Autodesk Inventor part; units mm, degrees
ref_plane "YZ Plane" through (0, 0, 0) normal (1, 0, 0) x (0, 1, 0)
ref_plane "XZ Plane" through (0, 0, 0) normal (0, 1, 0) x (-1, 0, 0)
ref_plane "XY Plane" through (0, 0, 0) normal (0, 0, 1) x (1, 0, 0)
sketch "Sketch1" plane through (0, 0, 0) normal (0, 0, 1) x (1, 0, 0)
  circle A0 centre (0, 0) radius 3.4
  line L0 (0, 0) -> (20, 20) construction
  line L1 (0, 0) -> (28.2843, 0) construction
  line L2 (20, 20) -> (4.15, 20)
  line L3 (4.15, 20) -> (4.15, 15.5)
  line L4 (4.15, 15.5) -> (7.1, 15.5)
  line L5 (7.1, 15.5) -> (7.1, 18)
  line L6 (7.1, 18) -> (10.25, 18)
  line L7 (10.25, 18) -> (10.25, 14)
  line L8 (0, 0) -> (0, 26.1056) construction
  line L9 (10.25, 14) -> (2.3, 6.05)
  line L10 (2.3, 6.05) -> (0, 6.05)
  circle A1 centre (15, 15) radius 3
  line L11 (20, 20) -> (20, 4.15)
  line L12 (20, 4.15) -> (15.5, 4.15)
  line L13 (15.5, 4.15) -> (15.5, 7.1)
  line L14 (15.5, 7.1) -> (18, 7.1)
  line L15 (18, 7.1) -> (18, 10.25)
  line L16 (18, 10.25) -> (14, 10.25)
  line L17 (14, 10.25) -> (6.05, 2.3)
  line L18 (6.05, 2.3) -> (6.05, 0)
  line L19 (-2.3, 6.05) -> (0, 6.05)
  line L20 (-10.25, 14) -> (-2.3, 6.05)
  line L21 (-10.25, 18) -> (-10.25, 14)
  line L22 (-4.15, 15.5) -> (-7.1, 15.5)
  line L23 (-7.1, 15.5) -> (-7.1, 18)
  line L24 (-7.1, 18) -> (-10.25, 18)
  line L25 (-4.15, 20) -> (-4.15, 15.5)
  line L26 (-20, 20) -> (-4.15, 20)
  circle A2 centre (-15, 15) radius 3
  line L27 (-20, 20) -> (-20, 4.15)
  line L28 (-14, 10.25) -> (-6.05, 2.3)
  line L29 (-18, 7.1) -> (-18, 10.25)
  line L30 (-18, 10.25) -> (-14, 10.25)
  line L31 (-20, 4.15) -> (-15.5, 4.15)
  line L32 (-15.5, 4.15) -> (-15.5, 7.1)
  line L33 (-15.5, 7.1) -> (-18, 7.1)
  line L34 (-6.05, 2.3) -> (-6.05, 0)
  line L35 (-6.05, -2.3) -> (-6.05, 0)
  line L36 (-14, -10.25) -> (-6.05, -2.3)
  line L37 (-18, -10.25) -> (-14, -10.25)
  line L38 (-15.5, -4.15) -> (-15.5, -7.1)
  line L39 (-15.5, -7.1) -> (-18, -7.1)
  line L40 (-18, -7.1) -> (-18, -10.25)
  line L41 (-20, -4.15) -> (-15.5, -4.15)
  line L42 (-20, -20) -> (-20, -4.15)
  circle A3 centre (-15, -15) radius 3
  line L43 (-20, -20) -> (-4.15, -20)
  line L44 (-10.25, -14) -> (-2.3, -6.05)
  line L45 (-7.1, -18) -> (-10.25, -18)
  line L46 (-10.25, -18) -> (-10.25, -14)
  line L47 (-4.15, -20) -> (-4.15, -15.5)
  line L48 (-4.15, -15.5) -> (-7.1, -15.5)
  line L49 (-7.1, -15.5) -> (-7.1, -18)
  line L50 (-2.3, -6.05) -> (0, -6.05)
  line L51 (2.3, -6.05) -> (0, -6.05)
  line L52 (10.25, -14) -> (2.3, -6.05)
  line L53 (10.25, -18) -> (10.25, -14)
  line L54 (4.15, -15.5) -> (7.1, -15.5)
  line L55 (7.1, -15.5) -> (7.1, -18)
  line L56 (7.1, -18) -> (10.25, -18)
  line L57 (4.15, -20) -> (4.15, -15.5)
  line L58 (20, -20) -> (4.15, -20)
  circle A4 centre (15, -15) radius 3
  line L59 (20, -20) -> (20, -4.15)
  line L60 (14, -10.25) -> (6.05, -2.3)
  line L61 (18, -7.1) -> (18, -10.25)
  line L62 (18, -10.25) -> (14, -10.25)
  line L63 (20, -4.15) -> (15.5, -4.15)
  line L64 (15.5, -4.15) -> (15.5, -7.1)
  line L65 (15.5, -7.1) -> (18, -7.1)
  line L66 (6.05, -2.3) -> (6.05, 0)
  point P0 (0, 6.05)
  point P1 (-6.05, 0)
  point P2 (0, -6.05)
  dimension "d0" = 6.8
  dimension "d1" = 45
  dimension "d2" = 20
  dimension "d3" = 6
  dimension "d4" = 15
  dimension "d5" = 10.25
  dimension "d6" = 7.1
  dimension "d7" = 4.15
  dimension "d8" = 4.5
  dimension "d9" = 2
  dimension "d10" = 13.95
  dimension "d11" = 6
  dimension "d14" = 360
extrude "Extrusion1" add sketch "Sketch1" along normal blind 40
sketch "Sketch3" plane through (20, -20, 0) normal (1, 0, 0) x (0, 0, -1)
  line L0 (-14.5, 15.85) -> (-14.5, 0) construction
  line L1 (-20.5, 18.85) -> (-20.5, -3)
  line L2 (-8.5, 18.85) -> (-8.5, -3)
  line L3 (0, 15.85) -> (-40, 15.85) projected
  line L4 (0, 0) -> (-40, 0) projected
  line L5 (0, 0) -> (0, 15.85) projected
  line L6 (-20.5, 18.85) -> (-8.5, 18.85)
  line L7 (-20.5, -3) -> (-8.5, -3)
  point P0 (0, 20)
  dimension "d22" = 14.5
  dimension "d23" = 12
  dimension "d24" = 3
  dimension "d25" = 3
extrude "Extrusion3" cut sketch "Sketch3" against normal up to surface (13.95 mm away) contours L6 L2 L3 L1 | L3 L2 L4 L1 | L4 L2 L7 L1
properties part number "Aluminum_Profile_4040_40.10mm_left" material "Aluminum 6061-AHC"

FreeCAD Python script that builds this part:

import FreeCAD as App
import Part
import Sketcher

V = App.Vector


def add_polygon(sketch, points):
    """Adds a closed chain of lines whose ends are joined by coincident constraints."""
    first, n = sketch.GeometryCount, len(points)
    for a, b in zip(points, points[1:] + points[:1]):
        sketch.addGeometry(Part.LineSegment(App.Vector(*a, 0), App.Vector(*b, 0)), False)
    for i in range(n):
        sketch.addConstraint(Sketcher.Constraint("Coincident", first + i, 2, first + (i + 1) % n, 1))

doc = App.newDocument("Part")
params = doc.addObject("Spreadsheet::Sheet", "Params")
for row, (alias, value) in enumerate([
    ("sketch1_diameter", "6 mm"),
    ("sketch1_diameter2", "6.8 mm"),
    ("sketch1_width", "4.5 mm"),
    ("sketch1_width2", "4 mm"),
    ("sketch1_width3", "4.6 mm"),
    ("pad1_length", "40 mm"),
    ("sketch2_height", "12 mm"),
    ("sketch2_width", "21.85 mm"),
    ("pocket1_length", "13.95 mm"),
], start=1):
    params.set(f"A{row}", alias)
    params.set(f"B{row}", "=" + value)
    params.setAlias(f"B{row}", alias)

body = doc.addObject("PartDesign::Body", "Body")

# Sketch on XY plane
sketch1 = body.newObject("Sketcher::SketchObject", "Sketch")
sketch1.AttachmentSupport = (doc.getObject("XY_Plane"), [""])
sketch1.MapMode = "FlatFace"
add_polygon(sketch1, [(20, 4.15), (20, 20), (4.15, 20), (4.15, 15.5), (7.1, 15.5), (7.1, 18), (10.25, 18), (10.25, 14), (2.3, 6.05), (-2.3, 6.05), (-10.25, 14), (-10.25, 18), (-7.1, 18), (-7.1, 15.5), (-4.15, 15.5), (-4.15, 20), (-20, 20), (-20, 4.15), (-15.5, 4.15), (-15.5, 7.1), (-18, 7.1), (-18, 10.25), (-14, 10.25), (-6.05, 2.3), (-6.05, -2.3), (-14, -10.25), (-18, -10.25), (-18, -7.1), (-15.5, -7.1), (-15.5, -4.15), (-20, -4.15), (-20, -20), (-4.15, -20), (-4.15, -15.5), (-7.1, -15.5), (-7.1, -18), (-10.25, -18), (-10.25, -14), (-2.3, -6.05), (2.3, -6.05), (10.25, -14), (10.25, -18), (7.1, -18), (7.1, -15.5), (4.15, -15.5), (4.15, -20), (20, -20), (20, -4.15), (15.5, -4.15), (15.5, -7.1), (18, -7.1), (18, -10.25), (14, -10.25), (6.05, -2.3), (6.05, 2.3), (14, 10.25), (18, 10.25), (18, 7.1), (15.5, 7.1), (15.5, 4.15)])  # lines 0-59
sketch1.addGeometry(Part.Circle(V(-15, -15, 0), V(0, 0, 1), 3), False)  # 60
sketch1.addGeometry(Part.Circle(V(15, -15, 0), V(0, 0, 1), 3), False)  # 61
sketch1.addGeometry(Part.Circle(V(-15, 15, 0), V(0, 0, 1), 3), False)  # 62
sketch1.addGeometry(Part.Circle(V(0, 0, 0), V(0, 0, 1), 3.4), False)  # 63
sketch1.addGeometry(Part.Circle(V(15, 15, 0), V(0, 0, 1), 3), False)  # 64
sketch1.addConstraint([
    Sketcher.Constraint("Vertical", 0),
    Sketcher.Constraint("Horizontal", 1),
    Sketcher.Constraint("Vertical", 2),
    Sketcher.Constraint("Horizontal", 3),
    Sketcher.Constraint("Vertical", 4),
    Sketcher.Constraint("Horizontal", 5),
    Sketcher.Constraint("Vertical", 6),
    Sketcher.Constraint("Horizontal", 8),
    Sketcher.Constraint("Vertical", 10),
    Sketcher.Constraint("Horizontal", 11),
    Sketcher.Constraint("Vertical", 12),
    Sketcher.Constraint("Horizontal", 13),
    Sketcher.Constraint("Vertical", 14),
    Sketcher.Constraint("Horizontal", 15),
    Sketcher.Constraint("Vertical", 16),
    Sketcher.Constraint("Horizontal", 17),
    Sketcher.Constraint("Vertical", 18),
    Sketcher.Constraint("Horizontal", 19),
    Sketcher.Constraint("Vertical", 20),
    Sketcher.Constraint("Horizontal", 21),
    Sketcher.Constraint("Vertical", 23),
    Sketcher.Constraint("Horizontal", 25),
    Sketcher.Constraint("Vertical", 26),
    Sketcher.Constraint("Horizontal", 27),
    Sketcher.Constraint("Vertical", 28),
    Sketcher.Constraint("Horizontal", 29),
    Sketcher.Constraint("Vertical", 30),
    Sketcher.Constraint("Horizontal", 31),
    Sketcher.Constraint("Vertical", 32),
    Sketcher.Constraint("Horizontal", 33),
    Sketcher.Constraint("Vertical", 34),
    Sketcher.Constraint("Horizontal", 35),
    Sketcher.Constraint("Vertical", 36),
    Sketcher.Constraint("Horizontal", 38),
    Sketcher.Constraint("Vertical", 40),
    Sketcher.Constraint("Horizontal", 41),
    Sketcher.Constraint("Vertical", 42),
    Sketcher.Constraint("Horizontal", 43),
    Sketcher.Constraint("Vertical", 44),
    Sketcher.Constraint("Horizontal", 45),
    Sketcher.Constraint("Vertical", 46),
    Sketcher.Constraint("Horizontal", 47),
    Sketcher.Constraint("Vertical", 48),
    Sketcher.Constraint("Horizontal", 49),
    Sketcher.Constraint("Vertical", 50),
    Sketcher.Constraint("Horizontal", 51),
    Sketcher.Constraint("Vertical", 53),
    Sketcher.Constraint("Horizontal", 55),
    Sketcher.Constraint("Vertical", 56),
    Sketcher.Constraint("Horizontal", 57),
    Sketcher.Constraint("Vertical", 58),
    Sketcher.Constraint("Horizontal", 59),
    Sketcher.Constraint("Coincident", 63, 3, -1, 1),
    Sketcher.Constraint("Equal", 60, 61),
    Sketcher.Constraint("Equal", 61, 62),
    Sketcher.Constraint("Equal", 62, 64),
    Sketcher.Constraint("Symmetric", 61, 3, 62, 3, -1, 1),
    Sketcher.Constraint("Symmetric", 60, 3, 64, 3, -1, 1),
    Sketcher.Constraint("Symmetric", 0, 2, 30, 2, -1, 1),
    Sketcher.Constraint("Symmetric", 2, 2, 32, 2, -1, 1),
    Sketcher.Constraint("Symmetric", 4, 2, 34, 2, -1, 1),
    Sketcher.Constraint("Symmetric", 6, 2, 36, 2, -1, 1),
    Sketcher.Constraint("Symmetric", 7, 2, 37, 2, -1, 1),
    Sketcher.Constraint("Symmetric", 9, 2, 39, 2, -1, 1),
    Sketcher.Constraint("Symmetric", 11, 2, 41, 2, -1, 1),
    Sketcher.Constraint("Symmetric", 13, 2, 43, 2, -1, 1),
    Sketcher.Constraint("Symmetric", 15, 2, 45, 2, -1, 1),
    Sketcher.Constraint("Symmetric", 17, 2, 47, 2, -1, 1),
    Sketcher.Constraint("Symmetric", 19, 2, 49, 2, -1, 1),
    Sketcher.Constraint("Symmetric", 21, 2, 51, 2, -1, 1),
    Sketcher.Constraint("Symmetric", 22, 2, 52, 2, -1, 1),
    Sketcher.Constraint("Symmetric", 24, 2, 54, 2, -1, 1),
    Sketcher.Constraint("Symmetric", 26, 2, 56, 2, -1, 1),
    Sketcher.Constraint("Symmetric", 28, 2, 58, 2, -1, 1),
    Sketcher.Constraint("Symmetric", 60, 3, 61, 3, -2),
    Sketcher.Constraint("Symmetric", 6, 2, 9, 2, -2),
    Sketcher.Constraint("Symmetric", 4, 2, 11, 2, -2),
    Sketcher.Constraint("Symmetric", 2, 2, 13, 2, -2),
    Sketcher.Constraint("Symmetric", 0, 2, 15, 2, -2),
    Sketcher.Constraint("Symmetric", 28, 2, 47, 2, -2),
    Sketcher.Constraint("Symmetric", 26, 2, 49, 2, -2),
    Sketcher.Constraint("Symmetric", 24, 2, 51, 2, -2),
    Sketcher.Constraint("Perpendicular", 7, 9),
    Sketcher.Constraint("Parallel", 9, 22),
    Sketcher.Constraint("Perpendicular", 22, 24),
    Sketcher.Constraint("Perpendicular", 37, 39),
    Sketcher.Constraint("Perpendicular", 52, 54),
    Sketcher.Constraint("Horizontal", 23, 2, 52, 2),
    Sketcher.Constraint("Equal", 45, 0),
    Sketcher.Constraint("Equal", 59, 2),
    Sketcher.Constraint("Equal", 57, 4),
    Sketcher.Constraint("Equal", 55, 6),
    Sketcher.Constraint("Equal", 43, 18),
    Sketcher.Constraint("Equal", 41, 20),
    Sketcher.Constraint("Equal", 38, 23),
    Sketcher.Constraint("Equal", 9, 22),
    Sketcher.Constraint("Diameter", 60, 6.0),
    Sketcher.Constraint("Diameter", 63, 6.8),
    Sketcher.Constraint("DistanceX", 17, 1, 17, 2, 4.5),
    Sketcher.Constraint("DistanceX", 60, 3, -1, 1, 15.0),
    Sketcher.Constraint("DistanceY", 60, 3, -1, 1, 15.0),
    Sketcher.Constraint("DistanceX", -1, 1, 0, 2, 20.0),
    Sketcher.Constraint("DistanceX", -1, 1, 3, 2, 7.1),
    Sketcher.Constraint("DistanceX", 21, 1, 21, 2, 4.0),
    Sketcher.Constraint("DistanceX", -1, 1, 1, 2, 4.15),
    Sketcher.Constraint("DistanceX", -1, 1, 5, 2, 10.25),
    Sketcher.Constraint("DistanceX", 8, 2, 8, 1, 4.6),
    Sketcher.Constraint("DistanceX", 19, 2, 19, 1, 2.5),
])
sketch1.setExpression("Constraints[156]", "Params.sketch1_diameter")
sketch1.setExpression("Constraints[157]", "Params.sketch1_diameter2")
sketch1.setExpression("Constraints[158]", "Params.sketch1_width")
sketch1.setExpression("Constraints[163]", "Params.sketch1_width2")
sketch1.setExpression("Constraints[166]", "Params.sketch1_width3")
pad1 = body.newObject("PartDesign::Pad", "Pad")
pad1.Profile = sketch1
pad1.setExpression("Length", "Params.pad1_length")

# Sketch on YZ plane
sketch2 = body.newObject("Sketcher::SketchObject", "Sketch001")
sketch2.AttachmentSupport = (doc.getObject("YZ_Plane"), [""])
sketch2.MapMode = "FlatFace"
sketch2.AttachmentOffset = App.Placement(V(0, 0, 20), App.Rotation())
add_polygon(sketch2, [(-1.15, 8.5), (-1.15, 20.5), (-23, 20.5), (-23, 8.5)])  # lines 0-3
sketch2.addConstraint([
    Sketcher.Constraint("Vertical", 0),
    Sketcher.Constraint("Horizontal", 1),
    Sketcher.Constraint("Vertical", 2),
    Sketcher.Constraint("Horizontal", 3),
    Sketcher.Constraint("DistanceY", 0, 1, 0, 2, 12.0),
    Sketcher.Constraint("DistanceX", 1, 2, -1, 1, 23.0),
    Sketcher.Constraint("DistanceX", 1, 2, 1, 1, 21.85),
    Sketcher.Constraint("DistanceY", -1, 1, 0, 2, 20.5),
])
sketch2.setExpression("Constraints[8]", "Params.sketch2_height")
sketch2.setExpression("Constraints[10]", "Params.sketch2_width")
pocket1 = body.newObject("PartDesign::Pocket", "Pocket")
pocket1.Profile = sketch2
pocket1.setExpression("Length", "Params.pocket1_length")

doc.recompute()
